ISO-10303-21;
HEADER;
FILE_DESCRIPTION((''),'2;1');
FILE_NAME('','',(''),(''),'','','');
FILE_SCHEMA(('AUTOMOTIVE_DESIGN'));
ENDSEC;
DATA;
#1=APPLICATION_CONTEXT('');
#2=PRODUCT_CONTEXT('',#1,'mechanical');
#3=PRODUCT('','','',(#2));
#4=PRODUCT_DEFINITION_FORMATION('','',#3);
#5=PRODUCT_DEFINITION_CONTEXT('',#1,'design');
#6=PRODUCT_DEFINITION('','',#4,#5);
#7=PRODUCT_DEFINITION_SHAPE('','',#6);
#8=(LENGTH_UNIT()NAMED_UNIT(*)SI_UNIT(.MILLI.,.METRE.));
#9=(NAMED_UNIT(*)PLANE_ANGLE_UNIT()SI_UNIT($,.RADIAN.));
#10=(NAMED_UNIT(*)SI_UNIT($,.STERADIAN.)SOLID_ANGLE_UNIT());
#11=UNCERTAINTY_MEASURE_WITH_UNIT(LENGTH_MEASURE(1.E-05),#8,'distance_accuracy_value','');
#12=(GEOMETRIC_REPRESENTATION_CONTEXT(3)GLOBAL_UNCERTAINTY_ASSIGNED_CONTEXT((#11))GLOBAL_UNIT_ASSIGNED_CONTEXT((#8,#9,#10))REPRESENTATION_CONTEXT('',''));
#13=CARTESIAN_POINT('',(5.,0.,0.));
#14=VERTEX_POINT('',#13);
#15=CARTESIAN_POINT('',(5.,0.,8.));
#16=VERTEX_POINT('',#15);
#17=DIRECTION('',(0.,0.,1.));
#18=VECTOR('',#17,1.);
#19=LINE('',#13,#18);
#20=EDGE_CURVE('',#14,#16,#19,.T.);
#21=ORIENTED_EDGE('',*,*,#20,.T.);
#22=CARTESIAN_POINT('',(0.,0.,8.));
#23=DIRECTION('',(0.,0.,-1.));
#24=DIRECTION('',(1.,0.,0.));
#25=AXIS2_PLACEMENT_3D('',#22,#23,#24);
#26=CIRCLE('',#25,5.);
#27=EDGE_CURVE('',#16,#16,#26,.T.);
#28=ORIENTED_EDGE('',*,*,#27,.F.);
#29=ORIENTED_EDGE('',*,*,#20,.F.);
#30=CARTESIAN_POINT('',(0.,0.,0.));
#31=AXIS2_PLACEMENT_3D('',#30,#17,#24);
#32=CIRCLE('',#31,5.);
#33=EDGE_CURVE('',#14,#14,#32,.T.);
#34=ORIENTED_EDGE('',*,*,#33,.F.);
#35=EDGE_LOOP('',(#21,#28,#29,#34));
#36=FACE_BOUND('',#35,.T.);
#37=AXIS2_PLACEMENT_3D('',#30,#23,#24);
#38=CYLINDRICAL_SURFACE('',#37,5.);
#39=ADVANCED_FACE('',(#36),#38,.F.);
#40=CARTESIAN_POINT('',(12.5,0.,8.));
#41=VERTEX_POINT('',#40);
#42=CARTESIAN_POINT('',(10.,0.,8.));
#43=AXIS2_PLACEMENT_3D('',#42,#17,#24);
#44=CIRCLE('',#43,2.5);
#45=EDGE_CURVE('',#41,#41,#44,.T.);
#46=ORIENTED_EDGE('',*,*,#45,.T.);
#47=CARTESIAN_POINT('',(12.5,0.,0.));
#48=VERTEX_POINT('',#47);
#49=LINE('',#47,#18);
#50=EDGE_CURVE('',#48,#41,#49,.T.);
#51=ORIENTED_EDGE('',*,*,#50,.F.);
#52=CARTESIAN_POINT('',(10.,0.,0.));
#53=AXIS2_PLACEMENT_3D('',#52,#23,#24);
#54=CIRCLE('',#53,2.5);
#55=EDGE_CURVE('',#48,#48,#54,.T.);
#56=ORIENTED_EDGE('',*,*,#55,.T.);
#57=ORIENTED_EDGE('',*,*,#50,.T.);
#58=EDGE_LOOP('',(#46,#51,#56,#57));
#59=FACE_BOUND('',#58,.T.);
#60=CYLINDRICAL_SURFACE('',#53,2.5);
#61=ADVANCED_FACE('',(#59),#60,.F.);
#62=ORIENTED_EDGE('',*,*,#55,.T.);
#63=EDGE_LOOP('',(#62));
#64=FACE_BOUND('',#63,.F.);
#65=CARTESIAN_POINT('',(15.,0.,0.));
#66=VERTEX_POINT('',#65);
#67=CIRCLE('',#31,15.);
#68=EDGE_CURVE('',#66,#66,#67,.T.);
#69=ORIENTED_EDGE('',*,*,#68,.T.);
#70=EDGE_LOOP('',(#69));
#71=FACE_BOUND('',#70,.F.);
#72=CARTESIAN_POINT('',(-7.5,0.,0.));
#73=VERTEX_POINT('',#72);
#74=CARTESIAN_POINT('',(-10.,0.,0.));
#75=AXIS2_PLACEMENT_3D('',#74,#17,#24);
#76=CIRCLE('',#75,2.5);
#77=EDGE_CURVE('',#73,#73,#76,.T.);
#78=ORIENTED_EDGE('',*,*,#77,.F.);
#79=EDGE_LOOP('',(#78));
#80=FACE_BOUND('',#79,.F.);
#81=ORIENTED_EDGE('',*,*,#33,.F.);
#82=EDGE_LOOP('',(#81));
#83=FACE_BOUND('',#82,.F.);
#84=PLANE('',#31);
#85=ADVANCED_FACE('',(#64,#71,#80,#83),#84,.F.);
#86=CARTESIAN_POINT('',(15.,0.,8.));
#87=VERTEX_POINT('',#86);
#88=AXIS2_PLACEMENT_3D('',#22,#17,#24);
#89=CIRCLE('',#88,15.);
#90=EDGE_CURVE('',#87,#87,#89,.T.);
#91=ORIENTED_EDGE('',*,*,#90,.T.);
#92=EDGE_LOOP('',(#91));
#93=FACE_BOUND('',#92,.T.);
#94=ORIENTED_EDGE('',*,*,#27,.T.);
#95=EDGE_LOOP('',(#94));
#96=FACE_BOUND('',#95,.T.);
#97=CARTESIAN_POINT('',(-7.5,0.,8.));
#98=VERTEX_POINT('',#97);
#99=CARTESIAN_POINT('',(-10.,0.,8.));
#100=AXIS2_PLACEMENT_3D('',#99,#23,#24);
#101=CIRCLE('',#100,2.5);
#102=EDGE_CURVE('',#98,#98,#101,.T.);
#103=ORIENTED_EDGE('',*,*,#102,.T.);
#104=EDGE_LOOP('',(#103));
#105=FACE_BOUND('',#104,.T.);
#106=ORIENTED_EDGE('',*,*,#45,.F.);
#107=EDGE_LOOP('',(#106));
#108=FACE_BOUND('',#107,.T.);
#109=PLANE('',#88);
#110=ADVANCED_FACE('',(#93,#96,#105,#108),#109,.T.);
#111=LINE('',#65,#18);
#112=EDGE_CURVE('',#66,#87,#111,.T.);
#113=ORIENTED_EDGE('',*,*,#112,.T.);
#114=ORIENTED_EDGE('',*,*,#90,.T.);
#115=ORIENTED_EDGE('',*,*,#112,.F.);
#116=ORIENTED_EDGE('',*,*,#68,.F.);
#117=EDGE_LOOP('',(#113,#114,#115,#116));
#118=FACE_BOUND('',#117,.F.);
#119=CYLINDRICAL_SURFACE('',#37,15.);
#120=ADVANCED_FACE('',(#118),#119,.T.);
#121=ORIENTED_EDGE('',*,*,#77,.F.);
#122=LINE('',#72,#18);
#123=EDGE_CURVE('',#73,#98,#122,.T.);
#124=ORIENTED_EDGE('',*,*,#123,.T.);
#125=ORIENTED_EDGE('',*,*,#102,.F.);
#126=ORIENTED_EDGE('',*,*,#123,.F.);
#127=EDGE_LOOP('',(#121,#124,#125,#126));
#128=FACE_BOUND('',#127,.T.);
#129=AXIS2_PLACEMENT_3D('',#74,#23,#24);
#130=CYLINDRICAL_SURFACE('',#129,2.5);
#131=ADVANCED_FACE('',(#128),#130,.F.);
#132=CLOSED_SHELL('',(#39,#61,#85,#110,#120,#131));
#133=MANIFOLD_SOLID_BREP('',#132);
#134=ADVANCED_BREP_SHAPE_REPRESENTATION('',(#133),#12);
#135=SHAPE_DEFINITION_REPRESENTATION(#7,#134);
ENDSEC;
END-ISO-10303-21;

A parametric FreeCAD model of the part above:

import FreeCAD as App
import Part
import Sketcher

V = App.Vector
Q = App.Units.Quantity

doc = App.newDocument("Part")
body = doc.addObject("PartDesign::Body", "Body")

# Sketch on XY plane
sketch1 = doc.addObject("Sketcher::SketchObject", "Sketch")
body.addObject(sketch1)
sketch1.AttachmentSupport = (doc.XY_Plane, [""])
sketch1.MapMode = "FlatFace"
sketch1.addGeometry(Part.Circle(V(0, 0, 0), V(0, 0, 1), 15), False)
sketch1.addGeometry(Part.Circle(V(10, 0, 0), V(0, 0, 1), 2.5), False)
sketch1.addGeometry(Part.Circle(V(-10, 0, 0), V(0, 0, 1), 2.5), False)
sketch1.addGeometry(Part.Circle(V(0, 0, 0), V(0, 0, 1), 5), False)
sketch1.addConstraint(Sketcher.Constraint("Coincident", 0, 3, -1, 1))
sketch1.addConstraint(Sketcher.Constraint("Coincident", 3, 3, -1, 1))
sketch1.addConstraint(Sketcher.Constraint("Equal", 1, 2))
sketch1.addConstraint(Sketcher.Constraint("Symmetric", 1, 3, 2, 3, -1, 1))
sketch1.addConstraint(Sketcher.Constraint("PointOnObject", 1, 3, -1))
sketch1.addConstraint(Sketcher.Constraint("Diameter", 0, Q("30 mm")))
sketch1.addConstraint(Sketcher.Constraint("Diameter", 1, Q("5 mm")))
sketch1.addConstraint(Sketcher.Constraint("Diameter", 3, Q("10 mm")))
sketch1.addConstraint(Sketcher.Constraint("DistanceX", -1, 1, 1, 3, Q("10 mm")))
pad1 = doc.addObject("PartDesign::Pad", "Pad")
body.addObject(pad1)
pad1.Profile = sketch1
pad1.Length = 8

doc.recompute()
